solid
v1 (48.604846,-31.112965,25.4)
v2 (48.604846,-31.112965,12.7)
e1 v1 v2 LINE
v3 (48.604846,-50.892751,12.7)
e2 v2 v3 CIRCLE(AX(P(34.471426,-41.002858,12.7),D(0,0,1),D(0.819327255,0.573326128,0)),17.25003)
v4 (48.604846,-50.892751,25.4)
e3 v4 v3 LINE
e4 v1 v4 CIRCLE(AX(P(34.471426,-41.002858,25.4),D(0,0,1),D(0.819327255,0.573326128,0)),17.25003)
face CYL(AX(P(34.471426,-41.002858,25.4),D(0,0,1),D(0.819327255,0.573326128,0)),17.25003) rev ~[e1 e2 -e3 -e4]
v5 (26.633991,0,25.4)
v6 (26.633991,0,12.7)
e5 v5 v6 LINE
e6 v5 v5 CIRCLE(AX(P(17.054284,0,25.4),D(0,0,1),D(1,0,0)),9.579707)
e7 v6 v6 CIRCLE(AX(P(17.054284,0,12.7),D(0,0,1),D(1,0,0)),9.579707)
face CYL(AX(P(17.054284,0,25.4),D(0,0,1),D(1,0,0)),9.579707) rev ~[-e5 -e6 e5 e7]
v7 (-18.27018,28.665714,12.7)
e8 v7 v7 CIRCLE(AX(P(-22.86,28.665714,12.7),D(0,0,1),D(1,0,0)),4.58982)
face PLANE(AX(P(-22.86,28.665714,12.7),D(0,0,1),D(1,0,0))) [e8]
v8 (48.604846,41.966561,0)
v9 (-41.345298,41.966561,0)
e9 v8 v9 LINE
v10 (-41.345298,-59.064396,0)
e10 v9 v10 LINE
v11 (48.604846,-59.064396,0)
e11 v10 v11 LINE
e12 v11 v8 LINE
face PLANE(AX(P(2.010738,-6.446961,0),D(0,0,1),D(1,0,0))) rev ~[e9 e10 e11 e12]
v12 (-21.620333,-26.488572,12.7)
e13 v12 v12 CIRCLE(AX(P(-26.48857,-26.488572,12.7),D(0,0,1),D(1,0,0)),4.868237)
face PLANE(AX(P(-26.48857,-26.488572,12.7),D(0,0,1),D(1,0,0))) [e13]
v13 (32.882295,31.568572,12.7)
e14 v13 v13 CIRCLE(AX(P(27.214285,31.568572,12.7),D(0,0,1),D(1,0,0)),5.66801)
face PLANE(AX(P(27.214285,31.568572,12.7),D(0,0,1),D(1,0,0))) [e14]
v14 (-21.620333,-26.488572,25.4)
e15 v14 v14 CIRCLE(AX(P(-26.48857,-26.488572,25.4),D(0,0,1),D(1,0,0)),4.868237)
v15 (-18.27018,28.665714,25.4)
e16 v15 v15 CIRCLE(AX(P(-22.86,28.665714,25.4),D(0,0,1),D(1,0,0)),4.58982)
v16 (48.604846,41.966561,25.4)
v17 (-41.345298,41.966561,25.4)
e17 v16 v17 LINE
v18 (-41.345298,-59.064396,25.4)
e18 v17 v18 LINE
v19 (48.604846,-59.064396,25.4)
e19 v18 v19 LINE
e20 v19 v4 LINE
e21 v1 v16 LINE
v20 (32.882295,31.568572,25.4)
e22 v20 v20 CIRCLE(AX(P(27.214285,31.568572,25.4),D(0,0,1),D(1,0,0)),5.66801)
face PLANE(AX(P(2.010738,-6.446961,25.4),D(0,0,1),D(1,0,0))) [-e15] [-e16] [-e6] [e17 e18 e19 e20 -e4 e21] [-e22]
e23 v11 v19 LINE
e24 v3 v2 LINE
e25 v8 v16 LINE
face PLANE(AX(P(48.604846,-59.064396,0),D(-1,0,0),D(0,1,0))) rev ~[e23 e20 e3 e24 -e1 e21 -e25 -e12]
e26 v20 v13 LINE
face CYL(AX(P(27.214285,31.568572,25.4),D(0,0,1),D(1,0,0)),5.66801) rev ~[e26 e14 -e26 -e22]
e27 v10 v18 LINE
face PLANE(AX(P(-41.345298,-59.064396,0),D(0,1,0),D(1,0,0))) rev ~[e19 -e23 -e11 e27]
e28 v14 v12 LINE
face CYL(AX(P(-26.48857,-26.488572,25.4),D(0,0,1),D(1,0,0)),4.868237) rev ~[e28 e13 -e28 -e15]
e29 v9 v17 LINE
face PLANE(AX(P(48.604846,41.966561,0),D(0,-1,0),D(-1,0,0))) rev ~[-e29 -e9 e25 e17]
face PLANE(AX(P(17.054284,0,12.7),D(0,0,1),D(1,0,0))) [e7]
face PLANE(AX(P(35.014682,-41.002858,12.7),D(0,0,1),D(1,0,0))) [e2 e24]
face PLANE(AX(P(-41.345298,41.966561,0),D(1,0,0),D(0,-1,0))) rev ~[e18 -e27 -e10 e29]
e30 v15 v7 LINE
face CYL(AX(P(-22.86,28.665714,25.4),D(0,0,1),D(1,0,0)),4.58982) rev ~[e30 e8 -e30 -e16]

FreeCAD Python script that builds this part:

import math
import FreeCAD as App
import Part
import Sketcher

V = App.Vector
Q = App.Units.Quantity

doc = App.newDocument("Part")
body = doc.addObject("PartDesign::Body", "Body")

# Sketch on XY plane
sketch1 = body.newObject("Sketcher::SketchObject", "Sketch")
sketch1.AttachmentSupport = (doc.getObject("XY_Plane"), [""])
sketch1.MapMode = "FlatFace"
sketch1.addGeometry([
    Part.LineSegment(V(-41.345298, 41.966561, 0), V(-41.345298, -59.064396, 0)),
    Part.LineSegment(V(-41.345298, -59.064396, 0), V(48.604846, -59.064396, 0)),
    Part.LineSegment(V(48.604846, -59.064396, 0), V(48.604846, 41.966561, 0)),
    Part.LineSegment(V(48.604846, 41.966561, 0), V(-41.345298, 41.966561, 0)),
], False)
sketch1.addConstraint([
    Sketcher.Constraint("Coincident", 0, 2, 1, 1),
    Sketcher.Constraint("Coincident", 1, 2, 2, 1),
    Sketcher.Constraint("Coincident", 2, 2, 3, 1),
    Sketcher.Constraint("Coincident", 3, 2, 0, 1),
    Sketcher.Constraint("Vertical", 0),
    Sketcher.Constraint("Horizontal", 1),
    Sketcher.Constraint("Vertical", 2),
    Sketcher.Constraint("Horizontal", 3),
    Sketcher.Constraint("DistanceX", 1, 1, 1, 2, Q("89.950144 mm")),
    Sketcher.Constraint("DistanceY", 0, 2, 0, 1, Q("101.030957 mm")),
    Sketcher.Constraint("DistanceY", -1, 1, 2, 2, Q("41.966561 mm")),
    Sketcher.Constraint("DistanceX", 0, 2, -1, 1, Q("41.345298 mm")),
])
pad1 = body.newObject("PartDesign::Pad", "Pad")
pad1.Profile = sketch1
pad1.Length = Q("1 in")

# Sketch on XY plane
sketch2 = body.newObject("Sketcher::SketchObject", "Sketch001")
sketch2.AttachmentSupport = (doc.getObject("XY_Plane"), [""])
sketch2.MapMode = "FlatFace"
sketch2.AttachmentOffset = App.Placement(V(0, 0, 1 * 25.4), App.Rotation())
sketch2.addGeometry([
    Part.Circle(V(-22.86, 28.665714, 0), V(0, 0, 1), 4.58982),  # 0
    Part.Circle(V(27.214285, 31.568572, 0), V(0, 0, 1), 5.66801),  # 1
    Part.Circle(V(-26.48857, -26.488572, 0), V(0, 0, 1), 4.868237),  # 2
    Part.Circle(V(17.054284, 0, 0), V(0, 0, 1), 9.579707),  # 3
    Part.LineSegment(V(48.604846, -50.892751, 0), V(48.604846, -31.112965, 0)),  # 4
    Part.ArcOfCircle(Part.Circle(V(34.471426, -41.002858, 0), V(0, 0, 1), 17.25003), math.radians(34.982494), math.radians(325.017506)),  # 5
], False)
sketch2.addConstraint([
    Sketcher.Constraint("Coincident", 4, 1, 5, 2),
    Sketcher.Constraint("Coincident", 5, 1, 4, 2),
    Sketcher.Constraint("Vertical", 4),
    Sketcher.Constraint("PointOnObject", 3, 3, -1),
    Sketcher.Constraint("Diameter", 1, Q("0.4463 in")),
    Sketcher.Constraint("DistanceX", 0, 3, -1, 1, Q("0.9 in")),
    Sketcher.Constraint("DistanceX", 3, 3, 1, 3, Q("0.4 in")),
    Sketcher.Constraint("DistanceX", 2, 3, 5, 3, Q("2.3999998 in")),
    Sketcher.Constraint("Diameter", 0, Q("9.17964 mm")),
    Sketcher.Constraint("Radius", 5, Q("17.25003 mm")),
    Sketcher.Constraint("Diameter", 2, Q("9.736474 mm")),
    Sketcher.Constraint("Diameter", 3, Q("19.159414 mm")),
    Sketcher.Constraint("DistanceY", 4, 1, 4, 2, Q("19.779786 mm")),
    Sketcher.Constraint("DistanceY", -1, 1, 1, 3, Q("31.568572 mm")),
    Sketcher.Constraint("DistanceX", 2, 3, -1, 1, Q("26.48857 mm")),
    Sketcher.Constraint("DistanceY", 5, 3, -1, 1, Q("41.002858 mm")),
    Sketcher.Constraint("DistanceX", 1, 3, 5, 3, Q("7.257141 mm")),
    Sketcher.Constraint("DistanceY", 4, 1, 2, 3, Q("24.404179 mm")),
    Sketcher.Constraint("DistanceY", -1, 1, 0, 3, Q("28.665714 mm")),
])
pocket1 = body.newObject("PartDesign::Pocket", "Pocket")
pocket1.Profile = sketch2
pocket1.Length = Q("0.5 in")

doc.recompute()
